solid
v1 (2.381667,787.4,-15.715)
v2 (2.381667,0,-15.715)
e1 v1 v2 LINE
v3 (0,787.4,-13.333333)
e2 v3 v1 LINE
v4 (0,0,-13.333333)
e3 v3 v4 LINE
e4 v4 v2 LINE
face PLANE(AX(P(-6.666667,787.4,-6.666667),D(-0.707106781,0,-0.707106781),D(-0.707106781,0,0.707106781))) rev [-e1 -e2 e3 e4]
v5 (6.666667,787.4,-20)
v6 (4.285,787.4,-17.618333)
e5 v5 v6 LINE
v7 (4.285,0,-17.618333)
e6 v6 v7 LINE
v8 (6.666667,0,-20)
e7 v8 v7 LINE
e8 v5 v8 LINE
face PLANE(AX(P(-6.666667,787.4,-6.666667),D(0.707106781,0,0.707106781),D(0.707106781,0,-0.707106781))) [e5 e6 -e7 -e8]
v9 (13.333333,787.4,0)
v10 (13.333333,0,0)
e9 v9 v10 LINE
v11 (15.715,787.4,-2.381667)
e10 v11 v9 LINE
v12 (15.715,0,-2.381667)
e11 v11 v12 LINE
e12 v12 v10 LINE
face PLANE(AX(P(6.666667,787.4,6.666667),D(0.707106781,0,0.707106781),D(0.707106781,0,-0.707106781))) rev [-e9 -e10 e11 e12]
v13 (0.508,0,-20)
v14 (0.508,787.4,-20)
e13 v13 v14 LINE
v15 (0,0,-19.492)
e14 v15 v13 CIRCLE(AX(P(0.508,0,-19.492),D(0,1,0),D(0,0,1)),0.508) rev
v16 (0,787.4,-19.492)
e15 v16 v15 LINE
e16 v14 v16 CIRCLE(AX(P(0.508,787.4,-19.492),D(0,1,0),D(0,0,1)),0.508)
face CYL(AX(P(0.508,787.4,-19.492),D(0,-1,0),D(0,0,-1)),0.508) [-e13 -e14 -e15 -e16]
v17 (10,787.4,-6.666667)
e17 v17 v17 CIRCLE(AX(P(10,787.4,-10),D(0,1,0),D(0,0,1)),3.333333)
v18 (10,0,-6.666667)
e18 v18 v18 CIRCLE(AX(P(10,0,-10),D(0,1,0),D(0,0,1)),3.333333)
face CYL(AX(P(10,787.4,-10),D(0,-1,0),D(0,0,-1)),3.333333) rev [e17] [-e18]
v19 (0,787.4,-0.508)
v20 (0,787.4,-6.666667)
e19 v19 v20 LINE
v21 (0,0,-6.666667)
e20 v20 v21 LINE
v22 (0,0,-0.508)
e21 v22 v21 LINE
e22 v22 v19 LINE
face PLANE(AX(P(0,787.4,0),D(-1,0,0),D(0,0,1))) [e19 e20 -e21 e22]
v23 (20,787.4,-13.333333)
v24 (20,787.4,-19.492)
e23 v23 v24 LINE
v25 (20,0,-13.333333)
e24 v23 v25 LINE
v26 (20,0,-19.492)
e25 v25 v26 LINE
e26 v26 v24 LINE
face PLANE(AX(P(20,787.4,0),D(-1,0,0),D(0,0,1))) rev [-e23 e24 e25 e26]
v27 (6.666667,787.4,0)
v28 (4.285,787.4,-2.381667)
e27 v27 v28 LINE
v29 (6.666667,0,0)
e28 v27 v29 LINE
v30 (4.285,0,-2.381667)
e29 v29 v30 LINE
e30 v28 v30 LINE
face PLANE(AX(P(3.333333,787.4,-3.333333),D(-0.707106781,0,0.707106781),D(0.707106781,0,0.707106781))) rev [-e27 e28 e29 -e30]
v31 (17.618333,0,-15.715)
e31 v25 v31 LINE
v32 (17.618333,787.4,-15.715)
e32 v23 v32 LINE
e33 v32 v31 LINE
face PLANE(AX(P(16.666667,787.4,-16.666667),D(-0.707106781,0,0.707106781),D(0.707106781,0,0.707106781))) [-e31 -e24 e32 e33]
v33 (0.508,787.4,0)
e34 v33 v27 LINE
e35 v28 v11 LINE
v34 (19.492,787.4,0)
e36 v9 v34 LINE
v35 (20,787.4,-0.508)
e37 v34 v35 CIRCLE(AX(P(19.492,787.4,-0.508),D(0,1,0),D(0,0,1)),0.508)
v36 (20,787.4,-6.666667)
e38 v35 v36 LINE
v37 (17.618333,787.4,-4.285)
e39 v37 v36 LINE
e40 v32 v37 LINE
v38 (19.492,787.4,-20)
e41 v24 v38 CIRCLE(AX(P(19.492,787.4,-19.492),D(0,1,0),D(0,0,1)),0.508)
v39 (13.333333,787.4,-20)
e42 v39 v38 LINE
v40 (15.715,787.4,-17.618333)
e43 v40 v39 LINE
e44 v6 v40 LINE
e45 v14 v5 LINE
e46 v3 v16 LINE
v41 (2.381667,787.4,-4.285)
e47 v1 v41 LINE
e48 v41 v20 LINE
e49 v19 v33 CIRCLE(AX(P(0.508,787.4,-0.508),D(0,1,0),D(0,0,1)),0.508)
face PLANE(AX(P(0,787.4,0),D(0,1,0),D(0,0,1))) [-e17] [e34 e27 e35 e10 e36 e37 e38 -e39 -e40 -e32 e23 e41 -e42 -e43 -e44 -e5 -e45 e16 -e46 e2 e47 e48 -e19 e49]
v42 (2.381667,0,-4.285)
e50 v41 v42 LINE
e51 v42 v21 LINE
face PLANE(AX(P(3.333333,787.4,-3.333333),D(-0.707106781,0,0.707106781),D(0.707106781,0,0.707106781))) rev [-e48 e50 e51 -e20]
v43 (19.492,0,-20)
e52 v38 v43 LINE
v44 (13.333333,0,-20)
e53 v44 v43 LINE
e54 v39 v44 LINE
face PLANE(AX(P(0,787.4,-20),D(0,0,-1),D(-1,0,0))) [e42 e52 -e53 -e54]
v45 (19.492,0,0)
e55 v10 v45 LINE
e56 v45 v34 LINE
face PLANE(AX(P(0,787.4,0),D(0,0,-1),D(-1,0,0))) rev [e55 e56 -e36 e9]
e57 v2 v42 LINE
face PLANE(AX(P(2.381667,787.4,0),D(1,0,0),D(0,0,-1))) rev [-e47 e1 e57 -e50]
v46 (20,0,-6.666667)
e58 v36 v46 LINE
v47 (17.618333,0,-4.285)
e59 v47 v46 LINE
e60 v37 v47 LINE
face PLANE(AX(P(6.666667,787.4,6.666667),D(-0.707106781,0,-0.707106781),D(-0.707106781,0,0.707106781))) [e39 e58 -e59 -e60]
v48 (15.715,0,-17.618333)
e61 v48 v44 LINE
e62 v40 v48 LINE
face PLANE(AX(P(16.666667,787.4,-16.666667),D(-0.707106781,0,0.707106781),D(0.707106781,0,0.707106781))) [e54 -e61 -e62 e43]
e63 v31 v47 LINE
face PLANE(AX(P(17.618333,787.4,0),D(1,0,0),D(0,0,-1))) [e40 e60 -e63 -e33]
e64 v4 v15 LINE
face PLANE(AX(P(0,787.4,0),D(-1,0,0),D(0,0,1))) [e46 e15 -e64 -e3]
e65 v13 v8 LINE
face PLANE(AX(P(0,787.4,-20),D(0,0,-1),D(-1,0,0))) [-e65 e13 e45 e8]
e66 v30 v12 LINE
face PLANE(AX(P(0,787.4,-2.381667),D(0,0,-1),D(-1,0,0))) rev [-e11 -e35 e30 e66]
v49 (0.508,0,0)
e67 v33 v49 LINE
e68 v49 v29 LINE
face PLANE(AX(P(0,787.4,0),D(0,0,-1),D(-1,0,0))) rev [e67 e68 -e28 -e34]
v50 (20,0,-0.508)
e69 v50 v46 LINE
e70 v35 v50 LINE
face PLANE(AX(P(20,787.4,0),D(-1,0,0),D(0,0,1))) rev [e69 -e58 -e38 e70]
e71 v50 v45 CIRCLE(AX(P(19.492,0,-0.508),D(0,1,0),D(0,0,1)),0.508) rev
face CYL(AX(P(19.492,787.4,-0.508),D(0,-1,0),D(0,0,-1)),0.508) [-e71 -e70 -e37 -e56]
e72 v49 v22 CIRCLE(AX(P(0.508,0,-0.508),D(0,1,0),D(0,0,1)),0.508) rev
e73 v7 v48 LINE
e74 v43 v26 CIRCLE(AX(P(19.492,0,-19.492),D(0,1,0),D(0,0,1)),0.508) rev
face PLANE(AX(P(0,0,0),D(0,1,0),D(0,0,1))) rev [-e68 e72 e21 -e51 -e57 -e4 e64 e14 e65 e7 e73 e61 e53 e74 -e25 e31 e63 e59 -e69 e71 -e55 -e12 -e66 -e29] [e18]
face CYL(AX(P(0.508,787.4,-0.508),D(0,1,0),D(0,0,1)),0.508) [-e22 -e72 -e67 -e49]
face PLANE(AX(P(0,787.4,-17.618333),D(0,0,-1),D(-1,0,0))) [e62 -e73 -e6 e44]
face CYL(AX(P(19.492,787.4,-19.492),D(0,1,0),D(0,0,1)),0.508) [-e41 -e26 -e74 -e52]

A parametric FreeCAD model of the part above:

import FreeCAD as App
import Part
import Sketcher

V = App.Vector
Q = App.Units.Quantity


def edges_at(feature, points):
    """Names of the edges that pass closest to the given points."""
    edges = feature.Shape.Edges
    near = lambda p: min(range(len(edges)), key=lambda i: edges[i].distToShape(Part.Vertex(*p))[0])
    return sorted({f"Edge{near(p) + 1}" for p in points})

doc = App.newDocument("Part")
params = doc.addObject("Spreadsheet::Sheet", "Params")
for row, (alias, value) in enumerate([
    ("sketch1_width", "0.45 in"),
    ("pad1_length", "31 in"),
    ("fillet_radius", "0.02 in"),
], start=1):
    params.set(f"A{row}", alias)
    params.set(f"B{row}", "=" + value)
    params.setAlias(f"B{row}", alias)

body = doc.addObject("PartDesign::Body", "Body")

# Sketch on XZ plane
sketch1 = body.newObject("Sketcher::SketchObject", "Sketch")
sketch1.AttachmentSupport = (doc.getObject("XZ_Plane"), [""])
sketch1.MapMode = "FlatFace"
sketch1.addGeometry([
    Part.LineSegment(V(4.3, -17.6, 0), V(6.7, -20, 0)),  # 0
    Part.LineSegment(V(6.7, -20, 0), V(0, -20, 0)),  # 1
    Part.LineSegment(V(0, -20, 0), V(0, -13.3, 0)),  # 2
    Part.LineSegment(V(0, -13.3, 0), V(2.4, -15.7, 0)),  # 3
    Part.LineSegment(V(2.4, -15.7, 0), V(2.4, -4.3, 0)),  # 4
    Part.LineSegment(V(2.4, -4.3, 0), V(0, -6.7, 0)),  # 5
    Part.LineSegment(V(0, -6.7, 0), V(0, 0, 0)),  # 6
    Part.LineSegment(V(0, 0, 0), V(6.7, 0, 0)),  # 7
    Part.LineSegment(V(6.7, 0, 0), V(4.3, -2.4, 0)),  # 8
    Part.LineSegment(V(4.3, -2.4, 0), V(15.7, -2.4, 0)),  # 9
    Part.LineSegment(V(15.7, -2.4, 0), V(13.3, 0, 0)),  # 10
    Part.LineSegment(V(13.3, 0, 0), V(20, 0, 0)),  # 11
    Part.LineSegment(V(20, 0, 0), V(20, -6.7, 0)),  # 12
    Part.LineSegment(V(20, -6.7, 0), V(17.6, -4.3, 0)),  # 13
    Part.LineSegment(V(17.6, -4.3, 0), V(17.6, -15.7, 0)),  # 14
    Part.LineSegment(V(17.6, -15.7, 0), V(20, -13.3, 0)),  # 15
    Part.LineSegment(V(20, -13.3, 0), V(20, -20, 0)),  # 16
    Part.LineSegment(V(20, -20, 0), V(13.3, -20, 0)),  # 17
    Part.LineSegment(V(13.3, -20, 0), V(15.7, -17.6, 0)),  # 18
    Part.LineSegment(V(15.7, -17.6, 0), V(4.3, -17.6, 0)),  # 19
    Part.Circle(V(10, -10, 0), V(0, 0, 1), 3.3),  # 20
], False)
sketch1.addConstraint([
    Sketcher.Constraint("Coincident", 0, 2, 1, 1),
    Sketcher.Constraint("Coincident", 1, 2, 2, 1),
    Sketcher.Constraint("Coincident", 2, 2, 3, 1),
    Sketcher.Constraint("Coincident", 3, 2, 4, 1),
    Sketcher.Constraint("Coincident", 4, 2, 5, 1),
    Sketcher.Constraint("Coincident", 5, 2, 6, 1),
    Sketcher.Constraint("Coincident", 6, 2, 7, 1),
    Sketcher.Constraint("Coincident", 7, 2, 8, 1),
    Sketcher.Constraint("Coincident", 8, 2, 9, 1),
    Sketcher.Constraint("Coincident", 9, 2, 10, 1),
    Sketcher.Constraint("Coincident", 10, 2, 11, 1),
    Sketcher.Constraint("Coincident", 11, 2, 12, 1),
    Sketcher.Constraint("Coincident", 12, 2, 13, 1),
    Sketcher.Constraint("Coincident", 13, 2, 14, 1),
    Sketcher.Constraint("Coincident", 14, 2, 15, 1),
    Sketcher.Constraint("Coincident", 15, 2, 16, 1),
    Sketcher.Constraint("Coincident", 16, 2, 17, 1),
    Sketcher.Constraint("Coincident", 17, 2, 18, 1),
    Sketcher.Constraint("Coincident", 18, 2, 19, 1),
    Sketcher.Constraint("Coincident", 19, 2, 0, 1),
    Sketcher.Constraint("Horizontal", 1),
    Sketcher.Constraint("Vertical", 2),
    Sketcher.Constraint("Vertical", 4),
    Sketcher.Constraint("Vertical", 6),
    Sketcher.Constraint("Horizontal", 7),
    Sketcher.Constraint("Horizontal", 9),
    Sketcher.Constraint("Horizontal", 11),
    Sketcher.Constraint("Vertical", 12),
    Sketcher.Constraint("Vertical", 14),
    Sketcher.Constraint("Vertical", 16),
    Sketcher.Constraint("Horizontal", 17),
    Sketcher.Constraint("Horizontal", 19),
    Sketcher.Constraint("Coincident", 6, 2, -1, 1),
    Sketcher.Constraint("PointOnObject", 1, 2, -2),
    Sketcher.Constraint("PointOnObject", 10, 2, -1),
    Sketcher.Constraint("Parallel", 0, 3),
    Sketcher.Constraint("Perpendicular", 3, 5),
    Sketcher.Constraint("Parallel", 5, 8),
    Sketcher.Constraint("Perpendicular", 8, 10),
    Sketcher.Constraint("Parallel", 10, 13),
    Sketcher.Constraint("Perpendicular", 13, 15),
    Sketcher.Constraint("Parallel", 15, 18),
    Sketcher.Constraint("Horizontal", 5, 2, 12, 2),
    Sketcher.Constraint("Horizontal", 4, 2, 13, 2),
    Sketcher.Constraint("Horizontal", 3, 2, 14, 2),
    Sketcher.Constraint("Horizontal", 2, 2, 15, 2),
    Sketcher.Constraint("Horizontal", 1, 2, 16, 2),
    Sketcher.Constraint("Vertical", 0, 2, 7, 2),
    Sketcher.Constraint("Vertical", 12, 2, 15, 2),
    Sketcher.Constraint("Vertical", 10, 2, 17, 2),
    Sketcher.Constraint("Vertical", 9, 2, 18, 2),
    Sketcher.Constraint("Equal", 7, 11),
    Sketcher.Constraint("Equal", 17, 2),
    Sketcher.Constraint("Equal", 19, 4),
    Sketcher.Constraint("Equal", 2, 6),
    Sketcher.Constraint("Equal", 0, 3),
    Sketcher.Constraint("DistanceX", 9, 1, 9, 2, Q("0.45 in")),
    Sketcher.Constraint("DistanceY", 3, 2, 20, 3, Q("0.225 in")),
    Sketcher.Constraint("DistanceX", 8, 2, 20, 3, Q("0.225 in")),
    Sketcher.Constraint("Diameter", 20, Q("6.666667 mm")),
    Sketcher.Constraint("DistanceX", -1, 1, 20, 3, Q("10 mm")),
    Sketcher.Constraint("DistanceX", 1, 2, 1, 1, Q("6.666667 mm")),
])
sketch1.setExpression("Constraints[56]", "Params.sketch1_width")
pad1 = body.newObject("PartDesign::Pad", "Pad")
pad1.Profile = sketch1
pad1.setExpression("Length", "Params.pad1_length")
pad1.Reversed = True
doc.recompute()

fillet = body.newObject("PartDesign::Fillet", "Fillet")
fillet.Base = (pad1, edges_at(pad1, [
    (20, 393.7, 0),
    (0, 393.7, 0),
    (0, 393.7, -20),
    (20, 393.7, -20),
]))
fillet.setExpression("Radius", "Params.fillet_radius")

doc.recompute()
